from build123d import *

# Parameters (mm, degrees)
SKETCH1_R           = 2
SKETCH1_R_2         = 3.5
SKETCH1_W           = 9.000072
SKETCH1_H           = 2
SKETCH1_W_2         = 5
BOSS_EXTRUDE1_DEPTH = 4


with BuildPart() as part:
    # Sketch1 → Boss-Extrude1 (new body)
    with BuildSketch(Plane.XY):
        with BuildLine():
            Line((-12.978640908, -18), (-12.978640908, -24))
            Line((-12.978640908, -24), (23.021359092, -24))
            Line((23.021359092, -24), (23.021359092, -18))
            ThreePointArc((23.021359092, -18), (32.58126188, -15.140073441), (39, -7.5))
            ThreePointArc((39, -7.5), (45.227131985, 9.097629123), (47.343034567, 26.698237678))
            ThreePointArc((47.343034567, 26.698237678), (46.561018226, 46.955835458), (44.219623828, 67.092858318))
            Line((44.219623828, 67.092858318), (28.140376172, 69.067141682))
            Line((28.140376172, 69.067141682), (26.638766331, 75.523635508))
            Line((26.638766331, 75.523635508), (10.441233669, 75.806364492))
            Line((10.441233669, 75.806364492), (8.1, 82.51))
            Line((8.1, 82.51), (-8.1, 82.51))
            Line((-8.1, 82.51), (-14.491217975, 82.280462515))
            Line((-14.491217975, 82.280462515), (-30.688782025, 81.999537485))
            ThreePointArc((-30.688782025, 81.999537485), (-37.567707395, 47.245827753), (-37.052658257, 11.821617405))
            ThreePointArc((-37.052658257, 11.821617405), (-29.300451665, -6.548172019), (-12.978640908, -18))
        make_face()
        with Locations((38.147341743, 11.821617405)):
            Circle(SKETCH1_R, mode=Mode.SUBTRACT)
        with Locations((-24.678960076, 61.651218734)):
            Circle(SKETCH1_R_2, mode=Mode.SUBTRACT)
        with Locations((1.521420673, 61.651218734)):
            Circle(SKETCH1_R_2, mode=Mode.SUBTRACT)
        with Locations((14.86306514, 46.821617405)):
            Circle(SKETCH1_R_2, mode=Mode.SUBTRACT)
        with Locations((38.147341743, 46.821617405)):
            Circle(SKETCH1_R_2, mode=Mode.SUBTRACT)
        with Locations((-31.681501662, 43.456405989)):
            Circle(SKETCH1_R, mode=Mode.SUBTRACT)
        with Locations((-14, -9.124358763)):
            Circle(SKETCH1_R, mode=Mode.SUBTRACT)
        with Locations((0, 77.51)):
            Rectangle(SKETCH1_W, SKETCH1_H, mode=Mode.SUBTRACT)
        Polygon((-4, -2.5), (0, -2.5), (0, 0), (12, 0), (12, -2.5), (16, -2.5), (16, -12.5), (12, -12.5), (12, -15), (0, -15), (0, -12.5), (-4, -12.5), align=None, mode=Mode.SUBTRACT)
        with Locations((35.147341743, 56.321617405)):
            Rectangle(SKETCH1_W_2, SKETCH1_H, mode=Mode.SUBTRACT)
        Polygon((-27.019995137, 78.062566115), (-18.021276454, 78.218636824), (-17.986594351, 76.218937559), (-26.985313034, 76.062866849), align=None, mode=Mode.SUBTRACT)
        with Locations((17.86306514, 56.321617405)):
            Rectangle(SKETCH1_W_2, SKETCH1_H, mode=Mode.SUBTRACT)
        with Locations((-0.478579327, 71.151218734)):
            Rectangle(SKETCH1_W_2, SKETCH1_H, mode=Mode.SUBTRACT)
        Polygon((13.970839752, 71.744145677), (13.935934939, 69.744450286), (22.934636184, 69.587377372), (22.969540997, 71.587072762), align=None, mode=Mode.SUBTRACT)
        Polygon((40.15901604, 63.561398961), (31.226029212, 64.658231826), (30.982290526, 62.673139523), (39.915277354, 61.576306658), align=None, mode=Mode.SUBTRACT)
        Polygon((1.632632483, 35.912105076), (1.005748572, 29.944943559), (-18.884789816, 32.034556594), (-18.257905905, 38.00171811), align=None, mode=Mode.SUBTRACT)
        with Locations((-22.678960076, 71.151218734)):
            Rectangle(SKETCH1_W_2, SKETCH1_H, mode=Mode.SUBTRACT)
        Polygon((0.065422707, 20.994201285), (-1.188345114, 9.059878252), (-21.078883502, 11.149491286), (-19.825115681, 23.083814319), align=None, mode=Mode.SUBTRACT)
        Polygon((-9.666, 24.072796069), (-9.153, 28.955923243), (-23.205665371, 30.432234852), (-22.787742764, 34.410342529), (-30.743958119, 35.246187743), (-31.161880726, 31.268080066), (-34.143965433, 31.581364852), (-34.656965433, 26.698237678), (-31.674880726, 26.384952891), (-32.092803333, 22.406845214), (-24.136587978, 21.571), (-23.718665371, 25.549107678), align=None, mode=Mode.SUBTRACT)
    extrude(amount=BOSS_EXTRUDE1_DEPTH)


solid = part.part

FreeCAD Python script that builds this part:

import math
import FreeCAD as App
import Part
import Sketcher
Q = App.Units.Quantity


def add_polygon(sketch, points):
    """Adds a closed chain of lines whose ends are joined by coincident constraints."""
    first, n = sketch.GeometryCount, len(points)
    for a, b in zip(points, points[1:] + points[:1]):
        sketch.addGeometry(Part.LineSegment(App.Vector(*a, 0), App.Vector(*b, 0)), False)
    for i in range(n):
        sketch.addConstraint(Sketcher.Constraint("Coincident", first + i, 2, first + (i + 1) % n, 1))

doc = App.newDocument("Part")
body = doc.addObject("PartDesign::Body", "Body")

# Sketch on XY plane
sketch1 = body.newObject("Sketcher::SketchObject", "Sketch")
sketch1.AttachmentSupport = (doc.getObject("XY_Plane"), [""])
sketch1.MapMode = "FlatFace"
sketch1.addGeometry(Part.LineSegment(App.Vector(-13, -18, 0), App.Vector(-13, -24, 0)), False)  # 0
sketch1.addGeometry(Part.LineSegment(App.Vector(-13, -24, 0), App.Vector(23, -24, 0)), False)  # 1
sketch1.addGeometry(Part.LineSegment(App.Vector(23, -24, 0), App.Vector(23, -18, 0)), False)  # 2
sketch1.addGeometry(Part.ArcOfCircle(Part.Circle(App.Vector(23, -0.6, 0), App.Vector(0, 0, 1), 17.4), math.radians(-90), math.radians(-23)), False)  # 3
sketch1.addGeometry(Part.ArcOfCircle(Part.Circle(App.Vector(-26.9, 26.7, 0), App.Vector(0, 0, 1), 74.3), math.radians(-27), math.radians(0)), False)  # 4
sketch1.addGeometry(Part.ArcOfCircle(Part.Circle(App.Vector(-215.4, 26.7, 0), App.Vector(0, 0, 1), 262.8), math.radians(0), math.radians(8.84)), False)  # 5
sketch1.addGeometry(Part.LineSegment(App.Vector(44.2, 67.1, 0), App.Vector(28.1, 69.1, 0)), False)  # 6
sketch1.addGeometry(Part.LineSegment(App.Vector(28.1, 69.1, 0), App.Vector(26.6, 75.5, 0)), False)  # 7
sketch1.addGeometry(Part.LineSegment(App.Vector(26.6, 75.5, 0), App.Vector(10.4, 75.8, 0)), False)  # 8
sketch1.addGeometry(Part.LineSegment(App.Vector(10.4, 75.8, 0), App.Vector(8.1, 82.5, 0)), False)  # 9
sketch1.addGeometry(Part.LineSegment(App.Vector(8.1, 82.5, 0), App.Vector(-8.1, 82.5, 0)), False)  # 10
sketch1.addGeometry(Part.LineSegment(App.Vector(-8.1, 82.5, 0), App.Vector(-14.5, 82.3, 0)), False)  # 11
sketch1.addGeometry(Part.LineSegment(App.Vector(-14.5, 82.3, 0), App.Vector(-30.7, 82, 0)), False)  # 12
sketch1.addGeometry(Part.ArcOfCircle(Part.Circle(App.Vector(130.8, 32, 0), App.Vector(0, 0, 1), 169.1), math.radians(163), math.radians(187)), False)  # 13
sketch1.addGeometry(Part.ArcOfCircle(Part.Circle(App.Vector(-1.2, 16.1, 0), App.Vector(0, 0, 1), 36.1), math.radians(-173), math.radians(-109)), False)  # 14
sketch1.addGeometry(Part.Circle(App.Vector(-14, -9.1, 0), App.Vector(0, 0, 1), 2), False)  # 15
add_polygon(sketch1, [(-9.2, 29), (-9.7, 24.1), (-23.7, 25.5), (-24.1, 21.6), (-32.1, 22.4), (-31.7, 26.4), (-34.7, 26.7), (-34.1, 31.6), (-31.2, 31.3), (-30.7, 35.2), (-22.8, 34.4), (-23.2, 30.4)])  # lines 16-27
add_polygon(sketch1, [(-19.8, 23.1), (0.1, 21), (-1.2, 9.1), (-21.1, 11.1)])  # lines 28-31
add_polygon(sketch1, [(-4, -12.5), (-4, -2.5), (0, -2.5), (0, 0), (12, 0), (12, -2.5), (16, -2.5), (16, -12.5), (12, -12.5), (12, -15), (0, -15), (0, -12.5)])  # lines 32-43
sketch1.addGeometry(Part.Circle(App.Vector(38.1, 11.8, 0), App.Vector(0, 0, 1), 2), False)  # 44
sketch1.addGeometry(Part.Circle(App.Vector(-31.7, 43.5, 0), App.Vector(0, 0, 1), 2), False)  # 45
add_polygon(sketch1, [(-18.3, 38), (1.6, 35.9), (1, 29.9), (-18.9, 32)])  # lines 46-49
sketch1.addGeometry(Part.Circle(App.Vector(-24.7, 61.7, 0), App.Vector(0, 0, 1), 3.5), False)  # 50
add_polygon(sketch1, [(-20.2, 70.2), (-25.2, 70.2), (-25.2, 72.2), (-20.2, 72.2)])  # lines 51-54
add_polygon(sketch1, [(-27, 76.1), (-27, 78.1), (-18, 78.2), (-18, 76.2)])  # lines 55-58
sketch1.addGeometry(Part.Circle(App.Vector(1.5, 61.7, 0), App.Vector(0, 0, 1), 3.5), False)  # 59
add_polygon(sketch1, [(2, 70.2), (-3, 70.2), (-3, 72.2), (2, 72.2)])  # lines 60-63
add_polygon(sketch1, [(4.5, 76.5), (-4.5, 76.5), (-4.5, 78.5), (4.5, 78.5)])  # lines 64-67
sketch1.addGeometry(Part.Circle(App.Vector(14.9, 46.8, 0), App.Vector(0, 0, 1), 3.5), False)  # 68
sketch1.addGeometry(Part.Circle(App.Vector(38.1, 46.8, 0), App.Vector(0, 0, 1), 3.5), False)  # 69
add_polygon(sketch1, [(20.4, 55.3), (15.4, 55.3), (15.4, 57.3), (20.4, 57.3)])  # lines 70-73
add_polygon(sketch1, [(13.9, 69.7), (14, 71.7), (23, 71.6), (22.9, 69.6)])  # lines 74-77
add_polygon(sketch1, [(37.6, 55.3), (32.6, 55.3), (32.6, 57.3), (37.6, 57.3)])  # lines 78-81
add_polygon(sketch1, [(31.2, 64.7), (40.2, 63.6), (39.9, 61.6), (31, 62.7)])  # lines 82-85
sketch1.addConstraint([
    Sketcher.Constraint("Coincident", 0, 2, 1, 1),
    Sketcher.Constraint("Coincident", 1, 2, 2, 1),
    Sketcher.Constraint("Coincident", 2, 2, 3, 1),
    Sketcher.Constraint("Coincident", 3, 2, 4, 1),
    Sketcher.Constraint("Tangent", 4, 2, 5, 1),
    Sketcher.Constraint("Coincident", 5, 2, 6, 1),
    Sketcher.Constraint("Coincident", 6, 2, 7, 1),
    Sketcher.Constraint("Coincident", 7, 2, 8, 1),
    Sketcher.Constraint("Coincident", 8, 2, 9, 1),
    Sketcher.Constraint("Coincident", 9, 2, 10, 1),
    Sketcher.Constraint("Coincident", 10, 2, 11, 1),
    Sketcher.Constraint("Coincident", 11, 2, 12, 1),
    Sketcher.Constraint("Coincident", 12, 2, 13, 1),
    Sketcher.Constraint("Tangent", 13, 2, 14, 1),
    Sketcher.Constraint("Coincident", 14, 2, 0, 1),
    Sketcher.Constraint("Vertical", 0),
    Sketcher.Constraint("Horizontal", 1),
    Sketcher.Constraint("Vertical", 2),
    Sketcher.Constraint("Horizontal", 10),
    Sketcher.Constraint("Vertical", 32),
    Sketcher.Constraint("Horizontal", 33),
    Sketcher.Constraint("Vertical", 34),
    Sketcher.Constraint("Horizontal", 35),
    Sketcher.Constraint("Vertical", 36),
    Sketcher.Constraint("Horizontal", 37),
    Sketcher.Constraint("Vertical", 38),
    Sketcher.Constraint("Horizontal", 39),
    Sketcher.Constraint("Vertical", 40),
    Sketcher.Constraint("Horizontal", 41),
    Sketcher.Constraint("Vertical", 42),
    Sketcher.Constraint("Horizontal", 43),
    Sketcher.Constraint("Horizontal", 51),
    Sketcher.Constraint("Vertical", 52),
    Sketcher.Constraint("Horizontal", 53),
    Sketcher.Constraint("Vertical", 54),
    Sketcher.Constraint("Horizontal", 60),
    Sketcher.Constraint("Vertical", 61),
    Sketcher.Constraint("Horizontal", 62),
    Sketcher.Constraint("Vertical", 63),
    Sketcher.Constraint("Horizontal", 64),
    Sketcher.Constraint("Vertical", 65),
    Sketcher.Constraint("Horizontal", 66),
    Sketcher.Constraint("Vertical", 67),
    Sketcher.Constraint("Horizontal", 70),
    Sketcher.Constraint("Vertical", 71),
    Sketcher.Constraint("Horizontal", 72),
    Sketcher.Constraint("Vertical", 73),
    Sketcher.Constraint("Horizontal", 78),
    Sketcher.Constraint("Vertical", 79),
    Sketcher.Constraint("Horizontal", 80),
    Sketcher.Constraint("Vertical", 81),
    Sketcher.Constraint("Coincident", 34, 2, -1, 1),
    Sketcher.Constraint("Equal", 15, 44),
    Sketcher.Constraint("Equal", 44, 45),
    Sketcher.Constraint("Equal", 50, 59),
    Sketcher.Constraint("Equal", 59, 68),
    Sketcher.Constraint("Equal", 68, 69),
    Sketcher.Constraint("PointOnObject", 41, 2, -2),
    Sketcher.Constraint("Perpendicular", 16, 17),
    Sketcher.Constraint("Perpendicular", 17, 18),
    Sketcher.Constraint("Perpendicular", 18, 19),
    Sketcher.Constraint("Perpendicular", 19, 20),
    Sketcher.Constraint("Perpendicular", 20, 21),
    Sketcher.Constraint("Perpendicular", 21, 22),
    Sketcher.Constraint("Perpendicular", 22, 23),
    Sketcher.Constraint("Perpendicular", 23, 24),
    Sketcher.Constraint("Perpendicular", 24, 25),
    Sketcher.Constraint("Perpendicular", 25, 26),
    Sketcher.Constraint("Perpendicular", 26, 27),
    Sketcher.Constraint("Parallel", 27, 28),
    Sketcher.Constraint("Perpendicular", 28, 29),
    Sketcher.Constraint("Perpendicular", 29, 30),
    Sketcher.Constraint("Perpendicular", 30, 31),
    Sketcher.Constraint("Perpendicular", 31, 46),
    Sketcher.Constraint("Perpendicular", 46, 47),
    Sketcher.Constraint("Perpendicular", 47, 48),
    Sketcher.Constraint("Perpendicular", 48, 49),
    Sketcher.Constraint("Perpendicular", 12, 55),
    Sketcher.Constraint("Perpendicular", 55, 56),
    Sketcher.Constraint("Perpendicular", 56, 57),
    Sketcher.Constraint("Perpendicular", 57, 58),
    Sketcher.Constraint("Perpendicular", 8, 74),
    Sketcher.Constraint("Perpendicular", 74, 75),
    Sketcher.Constraint("Perpendicular", 75, 76),
    Sketcher.Constraint("Perpendicular", 76, 77),
    Sketcher.Constraint("Parallel", 6, 82),
    Sketcher.Constraint("Perpendicular", 82, 83),
    Sketcher.Constraint("Perpendicular", 83, 84),
    Sketcher.Constraint("Perpendicular", 84, 85),
    Sketcher.Constraint("Horizontal", 4, 3, 5, 3),
    Sketcher.Constraint("Horizontal", 50, 3, 59, 3),
    Sketcher.Constraint("Horizontal", 68, 3, 69, 3),
    Sketcher.Constraint("Horizontal", 44, 3, 13, 2),
    Sketcher.Constraint("Horizontal", 2, 2, 14, 2),
    Sketcher.Constraint("Horizontal", 4, 2, 21, 2),
    Sketcher.Constraint("Horizontal", 33, 2, 36, 2),
    Sketcher.Constraint("Horizontal", 39, 2, 42, 2),
    Sketcher.Constraint("Horizontal", 54, 2, 60, 2),
    Sketcher.Constraint("Horizontal", 53, 2, 61, 2),
    Sketcher.Constraint("Horizontal", 73, 2, 78, 2),
    Sketcher.Constraint("Horizontal", 72, 2, 79, 2),
    Sketcher.Constraint("Vertical", 44, 3, 69, 3),
    Sketcher.Constraint("Vertical", 3, 3, 1, 2),
    Sketcher.Constraint("Vertical", 36, 2, 39, 2),
    Sketcher.Constraint("Equal", 33, 37),
    Sketcher.Constraint("Equal", 53, 60),
    Sketcher.Constraint("Equal", 62, 70),
    Sketcher.Constraint("Equal", 72, 78),
    Sketcher.Constraint("Equal", 36, 40),
    Sketcher.Constraint("Equal", 63, 65),
    Sketcher.Constraint("Equal", 67, 71),
    Sketcher.Constraint("Equal", 6, 8),
    Sketcher.Constraint("Equal", 8, 12),
    Sketcher.Constraint("Equal", 18, 20),
    Sketcher.Constraint("Equal", 16, 22),
    Sketcher.Constraint("Equal", 21, 23),
    Sketcher.Constraint("Equal", 20, 24),
    Sketcher.Constraint("Equal", 19, 25),
    Sketcher.Constraint("Equal", 30, 46),
    Sketcher.Constraint("Equal", 57, 74),
    Sketcher.Constraint("Equal", 58, 75),
    Sketcher.Constraint("Equal", 77, 82),
    Sketcher.Constraint("Equal", 76, 83),
    Sketcher.Constraint("Diameter", 15, 4.0),
    Sketcher.Constraint("Diameter", 50, 7.0),
    Sketcher.Constraint("DistanceX", 1, 1, 1, 2, 36.0),
    Sketcher.Constraint("DistanceX", 33, 1, 33, 2, 4.0),
    Sketcher.Constraint("DistanceX", 35, 1, 35, 2, 12.0),
    Sketcher.Constraint("DistanceX", 51, 2, 51, 1, 5.0),
    Sketcher.Constraint("DistanceY", 0, 2, 0, 1, 6.0),
    Sketcher.Constraint("DistanceY", 32, 1, 32, 2, 10.0),
    Sketcher.Constraint("DistanceY", 52, 1, 52, 2, 2.0),
    Sketcher.Constraint("Angle", 6, Q("173 deg")),
    Sketcher.Constraint("Angle", 8, Q("179 deg")),
    Sketcher.Constraint("Distance", 18, 4.0),
    Sketcher.Constraint("Distance", 19, 8.0),
    Sketcher.Constraint("Distance", 28, 20.0),
    Sketcher.Constraint("Distance", 29, 12.0),
    Sketcher.Constraint("Distance", 47, 6.0),
    Sketcher.Constraint("Distance", 55, 2.0),
    Sketcher.Constraint("DistanceX", 10, 2, 10, 1, 16.2),
    Sketcher.Constraint("DistanceY", 34, 1, 34, 2, 2.5),
    Sketcher.Constraint("DistanceX", 15, 3, -1, 1, 14.0),
    Sketcher.Constraint("DistanceY", 0, 2, -1, 1, 24.0),
    Sketcher.Constraint("DistanceX", -1, 1, 3, 2, 39.0),
    Sketcher.Constraint("Distance", 6, 16.2),
    Sketcher.Constraint("DistanceY", 3, 2, -1, 1, 7.5),
    Sketcher.Constraint("DistanceX", -1, 1, 9, 2, 8.1),
    Sketcher.Constraint("Distance", 16, 4.91),
    Sketcher.Constraint("Distance", 17, 14.13),
    Sketcher.Constraint("DistanceY", -1, 1, 9, 2, 82.51),
    Sketcher.Constraint("DistanceY", -1, 1, 64, 2, 76.51),
    Sketcher.Constraint("Radius", 3, 17.407951),
    Sketcher.Constraint("Radius", 4, 74.26109),
    Sketcher.Constraint("Radius", 13, 169.05805),
    Sketcher.Constraint("DistanceX", 16, 2, -1, 1, 9.666),
    Sketcher.Constraint("DistanceY", -1, 1, 18, 2, 21.571),
    Sketcher.Constraint("DistanceX", 27, 2, -1, 1, 9.153),
    Sketcher.Constraint("Radius", 5, 262.770607),
    Sketcher.Constraint("Radius", 14, 36.096364),
    Sketcher.Constraint("DistanceX", -1, 1, 13, 3, 130.799499),
    Sketcher.Constraint("DistanceX", 45, 3, -1, 1, 31.681502),
    Sketcher.Constraint("DistanceY", -1, 1, 28, 2, 20.994201),
    Sketcher.Constraint("DistanceY", -1, 1, 82, 2, 63.561399),
    Sketcher.Constraint("Distance", 7, 6.628812),
    Sketcher.Constraint("Distance", 9, 7.100712),
    Sketcher.Constraint("Distance", 11, 6.395339),
    Sketcher.Constraint("Distance", 56, 9.000072),
    Sketcher.Constraint("DistanceX", 64, 2, 64, 1, 9.000072),
    Sketcher.Constraint("DistanceX", 14, 3, -1, 1, 1.21377),
    Sketcher.Constraint("DistanceY", 15, 3, -1, 1, 9.124359),
    Sketcher.Constraint("DistanceX", -1, 1, 44, 3, 38.147342),
    Sketcher.Constraint("DistanceX", 50, 3, -1, 1, 24.67896),
    Sketcher.Constraint("DistanceY", -1, 1, 50, 3, 61.651219),
    Sketcher.Constraint("DistanceX", -1, 1, 59, 3, 1.521421),
    Sketcher.Constraint("DistanceY", -1, 1, 6, 2, 69.067142),
    Sketcher.Constraint("DistanceX", -1, 1, 47, 2, 1.005749),
    Sketcher.Constraint("DistanceY", -1, 1, 49, 2, 38.001718),
    Sketcher.Constraint("DistanceX", 51, 2, -1, 1, 25.17896),
    Sketcher.Constraint("DistanceY", -1, 1, 51, 2, 70.151219),
    Sketcher.Constraint("DistanceX", 60, 2, -1, 1, 2.978579),
    Sketcher.Constraint("DistanceX", -1, 1, 74, 2, 13.97084),
    Sketcher.Constraint("DistanceY", -1, 1, 77, 2, 69.74445),
    Sketcher.Constraint("DistanceX", -1, 1, 78, 2, 32.647342),
    Sketcher.Constraint("DistanceX", -1, 1, 84, 2, 30.982291),
    Sketcher.Constraint("Distance", 21, 2.998496),
    Sketcher.Constraint("DistanceY", -1, 1, 45, 3, 43.456406),
    Sketcher.Constraint("DistanceX", -1, 1, 68, 3, 14.863065),
    Sketcher.Constraint("DistanceY", -1, 1, 68, 3, 46.821617),
    Sketcher.Constraint("DistanceX", 11, 2, -1, 1, 14.491218),
    Sketcher.Constraint("DistanceX", -1, 1, 28, 2, 0.065423),
    Sketcher.Constraint("DistanceX", 55, 2, -1, 1, 27.019995),
    Sketcher.Constraint("DistanceY", -1, 1, 55, 2, 78.062566),
    Sketcher.Constraint("DistanceX", 64, 2, -1, 1, 4.500036),
    Sketcher.Constraint("DistanceX", -1, 1, 70, 2, 15.363065),
    Sketcher.Constraint("DistanceY", -1, 1, 70, 2, 55.321617),
])
pad1 = body.newObject("PartDesign::Pad", "Pad")
pad1.Profile = sketch1
pad1.Length = 4

doc.recompute()
